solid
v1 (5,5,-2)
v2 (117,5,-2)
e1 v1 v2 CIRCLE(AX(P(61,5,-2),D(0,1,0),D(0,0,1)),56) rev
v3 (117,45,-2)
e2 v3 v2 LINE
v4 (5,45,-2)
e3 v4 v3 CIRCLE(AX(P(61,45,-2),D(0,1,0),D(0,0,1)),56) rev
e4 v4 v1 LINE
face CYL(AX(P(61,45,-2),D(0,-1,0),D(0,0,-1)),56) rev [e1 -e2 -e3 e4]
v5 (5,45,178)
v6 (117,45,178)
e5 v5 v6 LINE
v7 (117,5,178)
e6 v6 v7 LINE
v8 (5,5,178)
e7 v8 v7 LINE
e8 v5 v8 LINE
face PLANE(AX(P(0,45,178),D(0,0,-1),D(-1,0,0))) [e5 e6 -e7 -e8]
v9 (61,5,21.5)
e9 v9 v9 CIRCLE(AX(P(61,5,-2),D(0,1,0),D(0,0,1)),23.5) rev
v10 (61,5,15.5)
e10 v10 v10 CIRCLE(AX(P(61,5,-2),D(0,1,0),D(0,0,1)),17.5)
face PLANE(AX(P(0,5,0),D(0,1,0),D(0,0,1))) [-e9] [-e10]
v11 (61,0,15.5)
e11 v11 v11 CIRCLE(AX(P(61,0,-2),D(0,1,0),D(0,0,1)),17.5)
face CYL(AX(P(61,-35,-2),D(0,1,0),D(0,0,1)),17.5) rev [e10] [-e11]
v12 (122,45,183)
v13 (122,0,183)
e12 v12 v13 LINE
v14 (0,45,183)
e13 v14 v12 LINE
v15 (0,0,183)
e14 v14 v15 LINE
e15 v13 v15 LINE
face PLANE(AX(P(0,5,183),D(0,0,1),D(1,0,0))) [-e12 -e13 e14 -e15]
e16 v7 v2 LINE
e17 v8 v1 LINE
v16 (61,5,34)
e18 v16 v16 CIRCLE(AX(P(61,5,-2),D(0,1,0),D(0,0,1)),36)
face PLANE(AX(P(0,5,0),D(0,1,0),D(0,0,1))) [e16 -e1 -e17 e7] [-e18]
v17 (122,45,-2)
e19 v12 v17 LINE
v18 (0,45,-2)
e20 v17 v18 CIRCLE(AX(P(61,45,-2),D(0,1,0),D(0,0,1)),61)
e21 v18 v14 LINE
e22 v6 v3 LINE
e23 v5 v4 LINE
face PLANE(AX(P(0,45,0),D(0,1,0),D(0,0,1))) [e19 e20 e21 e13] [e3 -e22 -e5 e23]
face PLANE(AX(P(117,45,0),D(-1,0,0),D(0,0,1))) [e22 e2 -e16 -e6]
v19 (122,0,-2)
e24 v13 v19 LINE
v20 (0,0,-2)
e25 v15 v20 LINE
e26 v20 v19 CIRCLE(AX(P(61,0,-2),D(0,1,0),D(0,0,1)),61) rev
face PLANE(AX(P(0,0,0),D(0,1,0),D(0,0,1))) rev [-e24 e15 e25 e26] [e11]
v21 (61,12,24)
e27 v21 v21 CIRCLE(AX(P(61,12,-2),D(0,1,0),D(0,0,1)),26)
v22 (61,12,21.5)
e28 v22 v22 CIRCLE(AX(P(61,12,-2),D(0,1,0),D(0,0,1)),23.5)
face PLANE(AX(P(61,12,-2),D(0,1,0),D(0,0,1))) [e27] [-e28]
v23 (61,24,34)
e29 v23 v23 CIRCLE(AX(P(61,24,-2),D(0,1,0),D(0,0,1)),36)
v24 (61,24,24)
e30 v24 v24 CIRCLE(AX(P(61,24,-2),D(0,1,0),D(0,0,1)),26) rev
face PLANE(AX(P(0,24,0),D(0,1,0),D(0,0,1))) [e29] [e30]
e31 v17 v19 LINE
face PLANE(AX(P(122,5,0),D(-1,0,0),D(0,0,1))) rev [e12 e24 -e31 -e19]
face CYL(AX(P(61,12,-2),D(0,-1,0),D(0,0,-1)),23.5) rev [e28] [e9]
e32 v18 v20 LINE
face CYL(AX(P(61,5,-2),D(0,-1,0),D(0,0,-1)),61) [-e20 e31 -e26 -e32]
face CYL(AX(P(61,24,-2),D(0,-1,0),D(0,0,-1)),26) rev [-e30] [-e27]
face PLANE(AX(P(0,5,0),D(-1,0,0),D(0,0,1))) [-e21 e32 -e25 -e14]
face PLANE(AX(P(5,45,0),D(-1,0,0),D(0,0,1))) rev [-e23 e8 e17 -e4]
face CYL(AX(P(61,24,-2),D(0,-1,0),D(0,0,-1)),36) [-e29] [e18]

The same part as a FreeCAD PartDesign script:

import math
import FreeCAD as App
import Part
import Sketcher
from FreeCAD import Vector

doc = App.newDocument("Part")
body = doc.addObject("PartDesign::Body", "Body")

sketch1 = body.newObject("Sketcher::SketchObject", "Sketch")
sketch1.AttachmentSupport = (doc.getObject("XZ_Plane"), [""])
sketch1.MapMode = "FlatFace"
sketch1.addGeometry([
    Part.LineSegment(Vector(0, 183, 0), Vector(122, 183, 0)),
    Part.LineSegment(Vector(122, 183, 0), Vector(122, -2, 0)),
    Part.ArcOfCircle(Part.Circle(Vector(61, -2, 0), Vector(0, 0, 1), 61), math.radians(180), math.radians(360)),
    Part.LineSegment(Vector(0, -2, 0), Vector(0, 183, 0)),
], False)
sketch1.addConstraint([
    Sketcher.Constraint("Coincident", 0, 2, 1, 1),
    Sketcher.Constraint("Tangent", 1, 2, 2, 2),
    Sketcher.Constraint("Tangent", 2, 1, 3, 1),
    Sketcher.Constraint("Coincident", 3, 2, 0, 1),
    Sketcher.Constraint("Horizontal", 0),
    Sketcher.Constraint("Vertical", 1),
    Sketcher.Constraint("Vertical", 3),
    Sketcher.Constraint("PointOnObject", 2, 1, -2),
    Sketcher.Constraint("Radius", 2, 61.0),
    Sketcher.Constraint("DistanceY", 1, 2, 1, 1, 185.0),
    Sketcher.Constraint("DistanceY", 2, 3, -1, 1, 2.0),
])
pad1 = body.newObject("PartDesign::Pad", "Pad")
pad1.Profile = sketch1
pad1.Length = 5
pad1.Reversed = True

sketch2 = body.newObject("Sketcher::SketchObject", "Sketch001")
sketch2.AttachmentSupport = (doc.getObject("XZ_Plane"), [""])
sketch2.MapMode = "FlatFace"
sketch2.AttachmentOffset = App.Placement(Vector(0, 0, -5), App.Rotation())
sketch2.addGeometry([
    Part.LineSegment(Vector(122, 183, 0), Vector(122, -2, 0)),
    Part.ArcOfCircle(Part.Circle(Vector(61, -2, 0), Vector(0, 0, 1), 61), math.radians(180), math.radians(360)),
    Part.LineSegment(Vector(0, -2, 0), Vector(0, 183, 0)),
    Part.LineSegment(Vector(0, 183, 0), Vector(122, 183, 0)),
    Part.LineSegment(Vector(117, 178, 0), Vector(5, 178, 0)),
    Part.LineSegment(Vector(5, 178, 0), Vector(5, -2, 0)),
    Part.ArcOfCircle(Part.Circle(Vector(61, -2, 0), Vector(0, 0, 1), 56), math.radians(180), math.radians(360)),
    Part.LineSegment(Vector(117, -2, 0), Vector(117, 178, 0)),
], False)
sketch2.addConstraint([
    Sketcher.Constraint("Tangent", 0, 2, 1, 2),
    Sketcher.Constraint("Tangent", 1, 1, 2, 1),
    Sketcher.Constraint("Coincident", 2, 2, 3, 1),
    Sketcher.Constraint("Coincident", 3, 2, 0, 1),
    Sketcher.Constraint("Coincident", 4, 2, 5, 1),
    Sketcher.Constraint("Tangent", 5, 2, 6, 1),
    Sketcher.Constraint("Tangent", 6, 2, 7, 1),
    Sketcher.Constraint("Coincident", 7, 2, 4, 1),
    Sketcher.Constraint("Vertical", 0),
    Sketcher.Constraint("Vertical", 2),
    Sketcher.Constraint("Horizontal", 3),
    Sketcher.Constraint("Horizontal", 4),
    Sketcher.Constraint("Vertical", 5),
    Sketcher.Constraint("Vertical", 7),
    Sketcher.Constraint("Coincident", 6, 3, 1, 3),
    Sketcher.Constraint("PointOnObject", 1, 1, -2),
    Sketcher.Constraint("Radius", 1, 61.0),
    Sketcher.Constraint("Radius", 6, 56.0),
    Sketcher.Constraint("DistanceY", 0, 2, 0, 1, 185.0),
    Sketcher.Constraint("DistanceY", 5, 2, 5, 1, 180.0),
    Sketcher.Constraint("DistanceY", 1, 3, -1, 1, 2.0),
])
pad2 = body.newObject("PartDesign::Pad", "Pad001")
pad2.Profile = sketch2
pad2.Length = 40
pad2.Reversed = True

sketch3 = body.newObject("Sketcher::SketchObject", "Sketch002")
sketch3.AttachmentSupport = (doc.getObject("XZ_Plane"), [""])
sketch3.MapMode = "FlatFace"
sketch3.AttachmentOffset = App.Placement(Vector(0, 0, -5), App.Rotation())
sketch3.addGeometry(Part.Circle(Vector(61, -2, 0), Vector(0, 0, 1), 18), False)
sketch3.addConstraint([
    Sketcher.Constraint("Diameter", 0, 35.0),
    Sketcher.Constraint("DistanceX", -1, 1, 0, 3, 61.0),
    Sketcher.Constraint("DistanceY", 0, 3, -1, 1, 2.0),
])
pocket1 = body.newObject("PartDesign::Pocket", "Pocket")
pocket1.Profile = sketch3
pocket1.Length = 40
pocket1.Reversed = True

sketch4 = body.newObject("Sketcher::SketchObject", "Sketch003")
sketch4.AttachmentSupport = (doc.getObject("XZ_Plane"), [""])
sketch4.MapMode = "FlatFace"
sketch4.AttachmentOffset = App.Placement(Vector(0, 0, -5), App.Rotation())
sketch4.addGeometry([
    Part.Circle(Vector(61, -2, 0), Vector(0, 0, 1), 26),
    Part.Circle(Vector(61, -2, 0), Vector(0, 0, 1), 24),
], False)
sketch4.addConstraint([
    Sketcher.Constraint("Coincident", 1, 3, 0, 3),
    Sketcher.Constraint("Diameter", 0, 52.0),
    Sketcher.Constraint("Diameter", 1, 47.0),
    Sketcher.Constraint("DistanceX", -1, 1, 0, 3, 61.0),
    Sketcher.Constraint("DistanceY", 0, 3, -1, 1, 2.0),
])
pad3 = body.newObject("PartDesign::Pad", "Pad002")
pad3.Profile = sketch4
pad3.Length = 7
pad3.Reversed = True

sketch5 = body.newObject("Sketcher::SketchObject", "Sketch004")
sketch5.AttachmentSupport = (doc.getObject("XZ_Plane"), [""])
sketch5.MapMode = "FlatFace"
sketch5.AttachmentOffset = App.Placement(Vector(0, 0, -5), App.Rotation())
sketch5.addGeometry([
    Part.Circle(Vector(61, -2, 0), Vector(0, 0, 1), 36),
    Part.Circle(Vector(61, -2, 0), Vector(0, 0, 1), 26),
], False)
sketch5.addConstraint([
    Sketcher.Constraint("Coincident", 1, 3, 0, 3),
    Sketcher.Constraint("Diameter", 0, 72.0),
    Sketcher.Constraint("Diameter", 1, 52.0),
    Sketcher.Constraint("DistanceX", -1, 1, 0, 3, 61.0),
    Sketcher.Constraint("DistanceY", 0, 3, -1, 1, 2.0),
])
pad4 = body.newObject("PartDesign::Pad", "Pad003")
pad4.Profile = sketch5
pad4.Length = 19
pad4.Reversed = True

doc.recompute()
